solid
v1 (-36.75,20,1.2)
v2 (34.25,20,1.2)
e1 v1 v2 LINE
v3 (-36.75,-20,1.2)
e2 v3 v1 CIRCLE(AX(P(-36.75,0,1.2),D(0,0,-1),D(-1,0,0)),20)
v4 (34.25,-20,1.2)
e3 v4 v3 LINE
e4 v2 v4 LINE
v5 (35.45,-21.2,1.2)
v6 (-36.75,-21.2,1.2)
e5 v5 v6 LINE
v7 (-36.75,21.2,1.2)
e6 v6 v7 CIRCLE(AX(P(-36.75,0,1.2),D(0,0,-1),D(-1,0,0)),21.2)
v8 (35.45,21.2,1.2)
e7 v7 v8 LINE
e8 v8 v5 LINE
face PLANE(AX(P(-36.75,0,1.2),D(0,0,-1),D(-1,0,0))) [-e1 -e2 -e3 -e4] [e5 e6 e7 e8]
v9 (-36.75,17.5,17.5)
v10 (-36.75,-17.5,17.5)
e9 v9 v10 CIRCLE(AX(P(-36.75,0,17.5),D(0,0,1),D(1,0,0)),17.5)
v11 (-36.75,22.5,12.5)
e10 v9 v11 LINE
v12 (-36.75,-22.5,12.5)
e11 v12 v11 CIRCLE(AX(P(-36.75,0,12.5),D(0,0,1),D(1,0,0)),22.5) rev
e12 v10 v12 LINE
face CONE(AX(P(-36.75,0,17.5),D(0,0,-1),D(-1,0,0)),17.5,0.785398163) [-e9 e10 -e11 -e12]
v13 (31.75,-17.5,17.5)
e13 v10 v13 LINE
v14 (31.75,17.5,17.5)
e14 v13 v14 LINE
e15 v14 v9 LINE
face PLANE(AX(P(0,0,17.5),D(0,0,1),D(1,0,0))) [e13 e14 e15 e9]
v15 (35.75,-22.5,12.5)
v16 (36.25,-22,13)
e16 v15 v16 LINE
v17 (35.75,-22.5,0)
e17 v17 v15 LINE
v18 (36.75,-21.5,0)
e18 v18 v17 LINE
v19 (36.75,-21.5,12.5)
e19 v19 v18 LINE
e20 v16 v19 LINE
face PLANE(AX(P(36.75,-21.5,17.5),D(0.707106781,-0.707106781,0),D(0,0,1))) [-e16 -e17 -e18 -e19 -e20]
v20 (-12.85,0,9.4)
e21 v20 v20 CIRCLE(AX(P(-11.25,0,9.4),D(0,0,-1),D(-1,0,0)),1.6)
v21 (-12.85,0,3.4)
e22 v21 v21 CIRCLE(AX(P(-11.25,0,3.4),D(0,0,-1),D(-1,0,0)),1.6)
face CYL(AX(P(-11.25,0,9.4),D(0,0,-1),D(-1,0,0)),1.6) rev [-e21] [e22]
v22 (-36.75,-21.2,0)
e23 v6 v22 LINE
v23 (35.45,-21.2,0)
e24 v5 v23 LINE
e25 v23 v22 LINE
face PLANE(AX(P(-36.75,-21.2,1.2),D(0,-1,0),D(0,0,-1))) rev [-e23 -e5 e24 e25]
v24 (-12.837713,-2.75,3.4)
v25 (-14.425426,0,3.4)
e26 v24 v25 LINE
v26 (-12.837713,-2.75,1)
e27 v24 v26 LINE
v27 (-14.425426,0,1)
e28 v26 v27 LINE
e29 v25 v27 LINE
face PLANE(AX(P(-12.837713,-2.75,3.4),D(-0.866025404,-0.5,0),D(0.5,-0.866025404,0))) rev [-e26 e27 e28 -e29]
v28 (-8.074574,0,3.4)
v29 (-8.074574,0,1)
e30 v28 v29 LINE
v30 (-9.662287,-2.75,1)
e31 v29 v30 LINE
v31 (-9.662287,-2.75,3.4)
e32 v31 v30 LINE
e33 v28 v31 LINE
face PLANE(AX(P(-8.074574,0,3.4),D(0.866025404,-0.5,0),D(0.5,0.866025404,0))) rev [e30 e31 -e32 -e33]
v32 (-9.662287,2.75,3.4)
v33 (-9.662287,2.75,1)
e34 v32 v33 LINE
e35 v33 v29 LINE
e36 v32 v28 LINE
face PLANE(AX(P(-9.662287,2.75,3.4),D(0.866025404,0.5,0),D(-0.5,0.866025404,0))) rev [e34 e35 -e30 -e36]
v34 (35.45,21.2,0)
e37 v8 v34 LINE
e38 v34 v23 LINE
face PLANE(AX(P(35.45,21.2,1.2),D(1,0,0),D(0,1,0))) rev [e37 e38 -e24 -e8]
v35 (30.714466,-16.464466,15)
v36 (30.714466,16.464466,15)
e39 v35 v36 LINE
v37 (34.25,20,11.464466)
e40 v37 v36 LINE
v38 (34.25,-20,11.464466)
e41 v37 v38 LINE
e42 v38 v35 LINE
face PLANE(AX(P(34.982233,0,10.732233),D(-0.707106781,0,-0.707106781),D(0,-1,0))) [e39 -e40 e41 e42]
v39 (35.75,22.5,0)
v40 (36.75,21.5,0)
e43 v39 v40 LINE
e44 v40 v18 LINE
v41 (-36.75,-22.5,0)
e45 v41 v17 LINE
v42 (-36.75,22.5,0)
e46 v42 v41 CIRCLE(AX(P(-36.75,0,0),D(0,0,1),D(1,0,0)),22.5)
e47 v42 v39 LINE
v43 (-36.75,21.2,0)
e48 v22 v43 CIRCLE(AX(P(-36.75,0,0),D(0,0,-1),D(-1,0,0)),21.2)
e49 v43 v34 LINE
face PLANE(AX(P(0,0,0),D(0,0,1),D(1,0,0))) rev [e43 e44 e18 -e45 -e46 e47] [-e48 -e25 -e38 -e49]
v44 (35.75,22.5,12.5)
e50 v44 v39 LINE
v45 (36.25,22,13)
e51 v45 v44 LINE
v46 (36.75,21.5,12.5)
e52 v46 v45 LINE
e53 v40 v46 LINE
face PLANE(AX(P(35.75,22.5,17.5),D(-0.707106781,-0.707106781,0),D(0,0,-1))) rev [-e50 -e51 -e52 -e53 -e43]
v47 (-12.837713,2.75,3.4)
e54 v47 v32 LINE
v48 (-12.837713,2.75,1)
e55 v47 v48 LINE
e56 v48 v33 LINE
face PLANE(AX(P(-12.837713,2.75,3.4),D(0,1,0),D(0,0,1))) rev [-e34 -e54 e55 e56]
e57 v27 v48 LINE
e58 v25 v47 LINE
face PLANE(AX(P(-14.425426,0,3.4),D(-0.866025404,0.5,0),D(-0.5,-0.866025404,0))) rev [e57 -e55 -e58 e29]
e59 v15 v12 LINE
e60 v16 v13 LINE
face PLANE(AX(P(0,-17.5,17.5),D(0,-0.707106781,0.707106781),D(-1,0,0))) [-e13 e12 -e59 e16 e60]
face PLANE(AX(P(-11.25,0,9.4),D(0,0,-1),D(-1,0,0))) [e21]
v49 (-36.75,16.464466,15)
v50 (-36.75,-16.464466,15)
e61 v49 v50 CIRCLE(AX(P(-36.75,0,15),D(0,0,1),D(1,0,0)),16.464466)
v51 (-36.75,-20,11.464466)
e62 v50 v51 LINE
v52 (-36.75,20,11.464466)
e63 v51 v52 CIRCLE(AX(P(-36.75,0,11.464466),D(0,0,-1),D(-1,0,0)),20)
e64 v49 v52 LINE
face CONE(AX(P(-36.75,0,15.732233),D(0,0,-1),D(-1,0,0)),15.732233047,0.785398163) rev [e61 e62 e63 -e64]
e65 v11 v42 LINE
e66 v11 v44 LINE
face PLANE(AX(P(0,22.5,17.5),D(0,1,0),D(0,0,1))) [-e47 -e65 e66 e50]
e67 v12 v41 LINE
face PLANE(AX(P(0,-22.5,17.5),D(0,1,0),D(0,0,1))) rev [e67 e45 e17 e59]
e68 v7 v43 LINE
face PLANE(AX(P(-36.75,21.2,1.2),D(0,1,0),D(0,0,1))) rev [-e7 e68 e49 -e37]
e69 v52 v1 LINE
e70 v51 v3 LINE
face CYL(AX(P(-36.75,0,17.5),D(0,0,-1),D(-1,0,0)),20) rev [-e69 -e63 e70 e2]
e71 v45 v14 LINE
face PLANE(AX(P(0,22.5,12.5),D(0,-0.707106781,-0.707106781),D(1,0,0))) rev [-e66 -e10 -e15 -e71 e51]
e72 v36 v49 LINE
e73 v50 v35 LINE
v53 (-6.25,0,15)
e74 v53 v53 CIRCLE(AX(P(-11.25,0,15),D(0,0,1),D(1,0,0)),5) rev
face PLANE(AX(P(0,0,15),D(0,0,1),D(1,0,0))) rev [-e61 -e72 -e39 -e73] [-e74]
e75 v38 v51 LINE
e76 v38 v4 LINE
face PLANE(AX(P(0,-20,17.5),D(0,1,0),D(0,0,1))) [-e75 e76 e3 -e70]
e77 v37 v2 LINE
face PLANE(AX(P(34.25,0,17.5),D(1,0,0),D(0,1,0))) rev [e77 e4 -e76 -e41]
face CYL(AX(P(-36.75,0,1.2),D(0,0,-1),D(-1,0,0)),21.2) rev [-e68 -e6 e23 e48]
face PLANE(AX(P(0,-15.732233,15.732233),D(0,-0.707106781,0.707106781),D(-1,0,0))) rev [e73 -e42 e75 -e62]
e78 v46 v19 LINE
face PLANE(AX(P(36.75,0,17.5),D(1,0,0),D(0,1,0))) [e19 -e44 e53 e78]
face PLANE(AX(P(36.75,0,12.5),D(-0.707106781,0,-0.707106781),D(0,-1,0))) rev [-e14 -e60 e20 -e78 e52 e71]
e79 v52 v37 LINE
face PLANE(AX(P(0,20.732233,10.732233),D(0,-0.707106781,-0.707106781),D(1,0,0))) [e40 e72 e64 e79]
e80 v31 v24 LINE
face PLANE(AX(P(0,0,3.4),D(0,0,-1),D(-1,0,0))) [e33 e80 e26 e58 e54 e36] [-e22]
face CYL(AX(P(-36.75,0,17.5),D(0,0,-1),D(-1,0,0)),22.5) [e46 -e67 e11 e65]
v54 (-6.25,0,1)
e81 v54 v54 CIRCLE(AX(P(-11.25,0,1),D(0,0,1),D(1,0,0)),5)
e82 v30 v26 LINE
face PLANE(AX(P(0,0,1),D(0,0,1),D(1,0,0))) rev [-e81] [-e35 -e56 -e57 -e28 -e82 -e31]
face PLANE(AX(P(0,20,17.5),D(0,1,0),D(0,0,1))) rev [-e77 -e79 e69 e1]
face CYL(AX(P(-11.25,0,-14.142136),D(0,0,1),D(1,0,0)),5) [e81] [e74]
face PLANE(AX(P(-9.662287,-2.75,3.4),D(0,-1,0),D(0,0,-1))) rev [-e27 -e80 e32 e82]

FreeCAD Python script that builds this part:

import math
import FreeCAD as App
import Part
import Sketcher

V = App.Vector
Q = App.Units.Quantity


def edges_at(feature, points):
    """Names of the edges that pass closest to the given points."""
    edges = feature.Shape.Edges
    near = lambda p: min(range(len(edges)), key=lambda i: edges[i].distToShape(Part.Vertex(*p))[0])
    return sorted({f"Edge{near(p) + 1}" for p in points})


def faces_at(feature, points):
    """Names of the faces that lie closest to the given points."""
    faces = feature.Shape.Faces
    near = lambda p: min(range(len(faces)), key=lambda i: faces[i].distToShape(Part.Vertex(*p))[0])
    return sorted({f"Face{near(p) + 1}" for p in points})


def add_polygon(sketch, points):
    """Adds a closed chain of lines whose ends are joined by coincident constraints."""
    first, n = sketch.GeometryCount, len(points)
    for a, b in zip(points, points[1:] + points[:1]):
        sketch.addGeometry(Part.LineSegment(App.Vector(*a, 0), App.Vector(*b, 0)), False)
    for i in range(n):
        sketch.addConstraint(Sketcher.Constraint("Coincident", first + i, 2, first + (i + 1) % n, 1))

doc = App.newDocument("Part")
body = doc.addObject("PartDesign::Body", "Body")

sketch1 = body.newObject("Sketcher::SketchObject", "Sketch")
sketch1.AttachmentSupport = (doc.getObject("XY_Plane"), [""])
sketch1.MapMode = "FlatFace"
sketch1.addGeometry([
    Part.ArcOfCircle(Part.Circle(V(-37, 0, 0), V(0, 0, 1), 22), math.radians(90), math.radians(270)),
    Part.LineSegment(V(-37, -22, 0), V(37, -22, 0)),
    Part.LineSegment(V(37, -22, 0), V(37, 22, 0)),
    Part.LineSegment(V(37, 22, 0), V(-37, 22, 0)),
], False)
sketch1.addConstraint([
    Sketcher.Constraint("Tangent", 0, 2, 1, 1),
    Sketcher.Constraint("Coincident", 1, 2, 2, 1),
    Sketcher.Constraint("Coincident", 2, 2, 3, 1),
    Sketcher.Constraint("Tangent", 3, 2, 0, 1),
    Sketcher.Constraint("Horizontal", 1),
    Sketcher.Constraint("Vertical", 2),
    Sketcher.Constraint("Horizontal", 3),
    Sketcher.Constraint("Symmetric", 0, 2, 2, 2, -1, 1),
    Sketcher.Constraint("Radius", 0, 22.5),
    Sketcher.Constraint("DistanceX", 1, 1, 1, 2, 73.5),
])
pad1 = body.newObject("PartDesign::Pad", "Pad")
pad1.Profile = sketch1
pad1.Length = 17.5
doc.recompute()

chamfer = body.newObject("PartDesign::Chamfer", "Chamfer")
chamfer.Base = (pad1, edges_at(pad1, [
    (0, -22.5, 17.5),
    (36.75, 0, 17.5),
    (0, 22.5, 17.5),
    (-59.25, 0, 17.5),
]))
chamfer.Size = 5
doc.recompute()

thickness = body.newObject("PartDesign::Thickness", "Thickness")
thickness.Base = (chamfer, faces_at(chamfer, [(-11.25, 0, 0)]))
thickness.Value = 2.5
thickness.Reversed = True
thickness.Join = "Intersection"

sketch2 = body.newObject("Sketcher::SketchObject", "Sketch001")
sketch2.AttachmentSupport = (doc.getObject("XY_Plane"), [""])
sketch2.MapMode = "FlatFace"
sketch2.addGeometry([
    Part.LineSegment(V(-37, 21, 0), V(35, 21, 0)),
    Part.LineSegment(V(35, 21, 0), V(35, -21, 0)),
    Part.LineSegment(V(35, -21, 0), V(-37, -21, 0)),
    Part.ArcOfCircle(Part.Circle(V(-37, 0, 0), V(0, 0, 1), 21), math.radians(90), math.radians(270)),
    Part.ArcOfCircle(Part.Circle(V(-37, 0, 0), V(0, 0, 1), 20), math.radians(90), math.radians(270)),
    Part.LineSegment(V(-37, -20, 0), V(34, -20, 0)),
    Part.LineSegment(V(34, -20, 0), V(34, 20, 0)),
    Part.LineSegment(V(34, 20, 0), V(-37, 20, 0)),
], False)
sketch2.addConstraint([
    Sketcher.Constraint("Coincident", 0, 2, 1, 1),
    Sketcher.Constraint("Coincident", 1, 2, 2, 1),
    Sketcher.Constraint("Tangent", 2, 2, 3, 2),
    Sketcher.Constraint("Tangent", 3, 1, 0, 1),
    Sketcher.Constraint("Tangent", 4, 2, 5, 1),
    Sketcher.Constraint("Coincident", 5, 2, 6, 1),
    Sketcher.Constraint("Coincident", 6, 2, 7, 1),
    Sketcher.Constraint("Tangent", 7, 2, 4, 1),
    Sketcher.Constraint("Horizontal", 0),
    Sketcher.Constraint("Vertical", 1),
    Sketcher.Constraint("Horizontal", 2),
    Sketcher.Constraint("Horizontal", 5),
    Sketcher.Constraint("Vertical", 6),
    Sketcher.Constraint("Horizontal", 7),
    Sketcher.Constraint("Coincident", 4, 3, 3, 3),
    Sketcher.Constraint("PointOnObject", 3, 3, -1),
    Sketcher.Constraint("Radius", 4, 20.0),
    Sketcher.Constraint("Radius", 3, 21.2),
    Sketcher.Constraint("DistanceX", 5, 1, 5, 2, 71.0),
    Sketcher.Constraint("DistanceX", 0, 1, 0, 2, 72.2),
    Sketcher.Constraint("DistanceX", 3, 3, -1, 1, 36.75),
])
pocket1 = body.newObject("PartDesign::Pocket", "Pocket")
pocket1.Profile = sketch2
pocket1.Length = 1.2
pocket1.Reversed = True

sketch3 = body.newObject("Sketcher::SketchObject", "Sketch002")
sketch3.AttachmentSupport = (doc.getObject("XY_Plane"), [""])
sketch3.MapMode = "FlatFace"
sketch3.AttachmentOffset = App.Placement(V(0, 0, 15), App.Rotation())
sketch3.addGeometry(Part.Circle(V(-11, 0, 0), V(0, 0, 1), 5), False)
sketch3.addConstraint([
    Sketcher.Constraint("PointOnObject", 0, 3, -1),
    Sketcher.Constraint("Diameter", 0, 10.0),
    Sketcher.Constraint("DistanceX", 0, 3, -1, 1, 11.25),
])
pad2 = body.newObject("PartDesign::Pad", "Pad001")
pad2.Profile = sketch3
pad2.Length = 14
pad2.Reversed = True

sketch4 = body.newObject("Sketcher::SketchObject", "Sketch003")
sketch4.AttachmentSupport = (doc.getObject("XY_Plane"), [""])
sketch4.MapMode = "FlatFace"
sketch4.AttachmentOffset = App.Placement(V(0, 0, 1), App.Rotation())
add_polygon(sketch4, [(-9.7, -2.8), (-12.8, -2.8), (-14.4, 0), (-12.8, 2.8), (-9.7, 2.8), (-8.1, 0)])
sketch4.addConstraint([
    Sketcher.Constraint("Horizontal", 0),
    Sketcher.Constraint("Horizontal", 3),
    Sketcher.Constraint("Symmetric", 0, 2, 2, 2, -1),
    Sketcher.Constraint("PointOnObject", 1, 2, -1),
    Sketcher.Constraint("PointOnObject", 4, 2, -1),
    Sketcher.Constraint("Parallel", 1, 4),
    Sketcher.Constraint("Parallel", 2, 5),
    Sketcher.Constraint("Angle", 1, Q("120 deg")),
    Sketcher.Constraint("DistanceY", 0, 2, 2, 2, 5.5),
    Sketcher.Constraint("DistanceX", 0, 2, 0, 1, 3.175426),
    Sketcher.Constraint("DistanceX", 0, 2, -1, 1, 12.837713),
])
pocket2 = body.newObject("PartDesign::Pocket", "Pocket001")
pocket2.Profile = sketch4
pocket2.Length = 2.4
pocket2.Reversed = True

sketch5 = body.newObject("Sketcher::SketchObject", "Sketch004")
sketch5.AttachmentSupport = (doc.getObject("XY_Plane"), [""])
sketch5.MapMode = "FlatFace"
sketch5.AttachmentOffset = App.Placement(V(0, 0, 3.4), App.Rotation())
sketch5.addGeometry(Part.Circle(V(-11.2, 0, 0), V(0, 0, 1), 1.6), False)
sketch5.addConstraint([
    Sketcher.Constraint("PointOnObject", 0, 3, -1),
    Sketcher.Constraint("Diameter", 0, 3.2),
    Sketcher.Constraint("DistanceX", 0, 3, -1, 1, 11.25),
])
pocket3 = body.newObject("PartDesign::Pocket", "Pocket002")
pocket3.Profile = sketch5
pocket3.Length = 6
pocket3.Reversed = True
doc.recompute()

chamfer2 = body.newObject("PartDesign::Chamfer", "Chamfer001")
chamfer2.Base = (pocket3, edges_at(pocket3, [(36.75, -22.5, 6.25), (36.75, 22.5, 6.25)]))
chamfer2.Size = 1

doc.recompute()
